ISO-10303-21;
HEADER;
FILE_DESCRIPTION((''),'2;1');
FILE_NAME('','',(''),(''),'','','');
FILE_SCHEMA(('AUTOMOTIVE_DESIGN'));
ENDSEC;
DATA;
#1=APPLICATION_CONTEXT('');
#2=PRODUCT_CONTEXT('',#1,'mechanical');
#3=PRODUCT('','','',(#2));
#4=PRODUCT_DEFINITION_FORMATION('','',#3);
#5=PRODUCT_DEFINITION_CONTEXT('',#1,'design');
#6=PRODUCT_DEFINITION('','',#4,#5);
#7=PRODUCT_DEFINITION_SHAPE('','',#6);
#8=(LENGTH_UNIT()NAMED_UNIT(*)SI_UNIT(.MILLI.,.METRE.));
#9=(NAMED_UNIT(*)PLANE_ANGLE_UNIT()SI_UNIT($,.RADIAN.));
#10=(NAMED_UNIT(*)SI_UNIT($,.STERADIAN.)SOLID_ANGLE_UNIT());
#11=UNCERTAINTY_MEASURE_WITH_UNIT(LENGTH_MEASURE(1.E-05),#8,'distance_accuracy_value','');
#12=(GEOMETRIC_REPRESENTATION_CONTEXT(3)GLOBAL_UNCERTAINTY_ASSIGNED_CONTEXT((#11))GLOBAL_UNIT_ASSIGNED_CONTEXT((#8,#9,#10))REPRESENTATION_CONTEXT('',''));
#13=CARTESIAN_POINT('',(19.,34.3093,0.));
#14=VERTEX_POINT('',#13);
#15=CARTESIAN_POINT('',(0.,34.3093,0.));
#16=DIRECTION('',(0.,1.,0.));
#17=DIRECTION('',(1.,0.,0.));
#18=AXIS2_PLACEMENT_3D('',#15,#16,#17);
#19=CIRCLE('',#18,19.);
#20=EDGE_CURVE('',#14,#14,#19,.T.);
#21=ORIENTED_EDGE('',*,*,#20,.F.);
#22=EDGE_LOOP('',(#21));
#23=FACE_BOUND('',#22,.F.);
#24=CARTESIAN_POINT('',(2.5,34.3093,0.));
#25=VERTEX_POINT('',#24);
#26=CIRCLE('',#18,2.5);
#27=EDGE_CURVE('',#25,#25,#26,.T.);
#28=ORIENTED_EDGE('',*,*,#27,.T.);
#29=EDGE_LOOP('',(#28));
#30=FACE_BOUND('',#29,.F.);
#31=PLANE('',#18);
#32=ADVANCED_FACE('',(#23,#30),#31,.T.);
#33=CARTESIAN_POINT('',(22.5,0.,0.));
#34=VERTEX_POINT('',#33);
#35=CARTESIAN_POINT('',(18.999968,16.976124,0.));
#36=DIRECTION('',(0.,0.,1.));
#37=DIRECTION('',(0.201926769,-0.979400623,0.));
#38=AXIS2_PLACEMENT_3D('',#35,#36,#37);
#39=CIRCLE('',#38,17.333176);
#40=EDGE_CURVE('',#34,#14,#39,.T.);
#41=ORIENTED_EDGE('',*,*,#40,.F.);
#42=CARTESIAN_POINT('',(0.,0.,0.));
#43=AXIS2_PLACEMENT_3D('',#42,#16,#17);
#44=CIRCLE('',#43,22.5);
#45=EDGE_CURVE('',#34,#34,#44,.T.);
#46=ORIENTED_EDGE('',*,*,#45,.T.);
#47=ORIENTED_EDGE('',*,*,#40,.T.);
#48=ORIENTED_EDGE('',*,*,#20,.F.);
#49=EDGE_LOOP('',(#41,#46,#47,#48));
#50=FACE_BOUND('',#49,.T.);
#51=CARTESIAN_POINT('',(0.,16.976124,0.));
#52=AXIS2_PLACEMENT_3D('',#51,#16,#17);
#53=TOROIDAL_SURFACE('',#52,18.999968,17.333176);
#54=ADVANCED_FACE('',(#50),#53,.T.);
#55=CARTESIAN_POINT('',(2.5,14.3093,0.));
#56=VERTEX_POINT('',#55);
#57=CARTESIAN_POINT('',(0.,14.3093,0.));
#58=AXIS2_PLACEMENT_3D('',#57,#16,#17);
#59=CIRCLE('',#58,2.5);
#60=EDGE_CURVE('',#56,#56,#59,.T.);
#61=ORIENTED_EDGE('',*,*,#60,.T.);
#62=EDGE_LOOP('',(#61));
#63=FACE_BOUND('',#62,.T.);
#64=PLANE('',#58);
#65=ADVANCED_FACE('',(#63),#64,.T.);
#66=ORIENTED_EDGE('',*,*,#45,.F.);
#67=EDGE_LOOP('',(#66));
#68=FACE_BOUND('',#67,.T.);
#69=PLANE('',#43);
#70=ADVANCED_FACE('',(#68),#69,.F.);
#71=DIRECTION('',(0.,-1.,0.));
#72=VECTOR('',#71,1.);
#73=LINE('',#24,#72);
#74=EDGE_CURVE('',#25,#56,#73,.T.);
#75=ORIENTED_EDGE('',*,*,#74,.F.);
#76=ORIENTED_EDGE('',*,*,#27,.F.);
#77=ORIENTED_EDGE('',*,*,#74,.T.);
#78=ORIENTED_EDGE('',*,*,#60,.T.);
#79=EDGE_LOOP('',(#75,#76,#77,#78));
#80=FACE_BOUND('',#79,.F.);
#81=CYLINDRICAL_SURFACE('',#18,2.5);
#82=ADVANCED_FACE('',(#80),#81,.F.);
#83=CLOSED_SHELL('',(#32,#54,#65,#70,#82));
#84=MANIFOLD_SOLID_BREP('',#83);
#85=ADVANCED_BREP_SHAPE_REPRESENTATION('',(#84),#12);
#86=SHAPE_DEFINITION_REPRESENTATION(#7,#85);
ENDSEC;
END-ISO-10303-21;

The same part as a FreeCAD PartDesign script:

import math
import FreeCAD as App
import Part
import Sketcher

doc = App.newDocument("Part")
body = doc.addObject("PartDesign::Body", "Body")

sketch1 = body.newObject("Sketcher::SketchObject", "Sketch")
sketch1.AttachmentSupport = (doc.getObject("XY_Plane"), [""])
sketch1.MapMode = "FlatFace"
sketch1.addGeometry([
    Part.LineSegment(App.Vector(0, 34, 0), App.Vector(0, 0, 0)),
    Part.LineSegment(App.Vector(0, 0, 0), App.Vector(22, 0, 0)),
    Part.ArcOfCircle(Part.Circle(App.Vector(19, 17, 0), App.Vector(0, 0, 1), 17), math.radians(-78), math.radians(90)),
    Part.LineSegment(App.Vector(19, 34, 0), App.Vector(0, 34, 0)),
], False)
sketch1.addConstraint([
    Sketcher.Constraint("Coincident", 0, 2, 1, 1),
    Sketcher.Constraint("Coincident", 1, 2, 2, 1),
    Sketcher.Constraint("Tangent", 2, 2, 3, 1),
    Sketcher.Constraint("Coincident", 3, 2, 0, 1),
    Sketcher.Constraint("Vertical", 0),
    Sketcher.Constraint("Horizontal", 1),
    Sketcher.Constraint("Horizontal", 3),
    Sketcher.Constraint("Coincident", 0, 2, -1, 1),
    Sketcher.Constraint("DistanceX", 3, 2, 3, 1, 19.0),
    Sketcher.Constraint("DistanceX", 1, 1, 1, 2, 22.5),
    Sketcher.Constraint("Radius", 2, 17.3331),
])
revolution = body.newObject("PartDesign::Revolution", "Revolution")
revolution.Profile = sketch1
revolution.ReferenceAxis = (sketch1, ["V_Axis"])
revolution.Angle = 360

sketch2 = body.newObject("Sketcher::SketchObject", "Sketch001")
sketch2.AttachmentSupport = (doc.getObject("XZ_Plane"), [""])
sketch2.MapMode = "FlatFace"
sketch2.AttachmentOffset = App.Placement(App.Vector(0, 0, -34.3093), App.Rotation())
sketch2.addGeometry(Part.Circle(App.Vector(0, 0, 0), App.Vector(0, 0, 1), 2.5), False)
sketch2.addConstraint([
    Sketcher.Constraint("Coincident", 0, 3, -1, 1),
    Sketcher.Constraint("Diameter", 0, 5.0),
])
pocket1 = body.newObject("PartDesign::Pocket", "Pocket")
pocket1.Profile = sketch2
pocket1.Length = 20
pocket1.Reversed = True

doc.recompute()
